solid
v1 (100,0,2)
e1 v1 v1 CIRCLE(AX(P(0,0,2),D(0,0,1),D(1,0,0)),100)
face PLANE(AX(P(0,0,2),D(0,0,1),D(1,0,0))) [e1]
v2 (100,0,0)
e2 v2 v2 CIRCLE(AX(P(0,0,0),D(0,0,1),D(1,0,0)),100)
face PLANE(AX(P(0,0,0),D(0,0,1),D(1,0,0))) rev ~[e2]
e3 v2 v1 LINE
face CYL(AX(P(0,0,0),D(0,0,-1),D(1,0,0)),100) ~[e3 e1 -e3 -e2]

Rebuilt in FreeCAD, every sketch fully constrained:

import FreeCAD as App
import Part
import Sketcher

V = App.Vector
Q = App.Units.Quantity

doc = App.newDocument("Part")
body = doc.addObject("PartDesign::Body", "Body")

# Sketch on XY plane
sketch1 = body.newObject("Sketcher::SketchObject", "Sketch")
sketch1.AttachmentSupport = (doc.getObject("XY_Plane"), [""])
sketch1.MapMode = "FlatFace"
sketch1.addGeometry(Part.Circle(V(0, 0, 0), V(0, 0, 1), 100), False)
sketch1.addConstraint([
    Sketcher.Constraint("Coincident", 0, 3, -1, 1),
    Sketcher.Constraint("Diameter", 0, Q("200 mm")),
])
pad1 = body.newObject("PartDesign::Pad", "Pad")
pad1.Profile = sketch1
pad1.Length = 2

doc.recompute()
